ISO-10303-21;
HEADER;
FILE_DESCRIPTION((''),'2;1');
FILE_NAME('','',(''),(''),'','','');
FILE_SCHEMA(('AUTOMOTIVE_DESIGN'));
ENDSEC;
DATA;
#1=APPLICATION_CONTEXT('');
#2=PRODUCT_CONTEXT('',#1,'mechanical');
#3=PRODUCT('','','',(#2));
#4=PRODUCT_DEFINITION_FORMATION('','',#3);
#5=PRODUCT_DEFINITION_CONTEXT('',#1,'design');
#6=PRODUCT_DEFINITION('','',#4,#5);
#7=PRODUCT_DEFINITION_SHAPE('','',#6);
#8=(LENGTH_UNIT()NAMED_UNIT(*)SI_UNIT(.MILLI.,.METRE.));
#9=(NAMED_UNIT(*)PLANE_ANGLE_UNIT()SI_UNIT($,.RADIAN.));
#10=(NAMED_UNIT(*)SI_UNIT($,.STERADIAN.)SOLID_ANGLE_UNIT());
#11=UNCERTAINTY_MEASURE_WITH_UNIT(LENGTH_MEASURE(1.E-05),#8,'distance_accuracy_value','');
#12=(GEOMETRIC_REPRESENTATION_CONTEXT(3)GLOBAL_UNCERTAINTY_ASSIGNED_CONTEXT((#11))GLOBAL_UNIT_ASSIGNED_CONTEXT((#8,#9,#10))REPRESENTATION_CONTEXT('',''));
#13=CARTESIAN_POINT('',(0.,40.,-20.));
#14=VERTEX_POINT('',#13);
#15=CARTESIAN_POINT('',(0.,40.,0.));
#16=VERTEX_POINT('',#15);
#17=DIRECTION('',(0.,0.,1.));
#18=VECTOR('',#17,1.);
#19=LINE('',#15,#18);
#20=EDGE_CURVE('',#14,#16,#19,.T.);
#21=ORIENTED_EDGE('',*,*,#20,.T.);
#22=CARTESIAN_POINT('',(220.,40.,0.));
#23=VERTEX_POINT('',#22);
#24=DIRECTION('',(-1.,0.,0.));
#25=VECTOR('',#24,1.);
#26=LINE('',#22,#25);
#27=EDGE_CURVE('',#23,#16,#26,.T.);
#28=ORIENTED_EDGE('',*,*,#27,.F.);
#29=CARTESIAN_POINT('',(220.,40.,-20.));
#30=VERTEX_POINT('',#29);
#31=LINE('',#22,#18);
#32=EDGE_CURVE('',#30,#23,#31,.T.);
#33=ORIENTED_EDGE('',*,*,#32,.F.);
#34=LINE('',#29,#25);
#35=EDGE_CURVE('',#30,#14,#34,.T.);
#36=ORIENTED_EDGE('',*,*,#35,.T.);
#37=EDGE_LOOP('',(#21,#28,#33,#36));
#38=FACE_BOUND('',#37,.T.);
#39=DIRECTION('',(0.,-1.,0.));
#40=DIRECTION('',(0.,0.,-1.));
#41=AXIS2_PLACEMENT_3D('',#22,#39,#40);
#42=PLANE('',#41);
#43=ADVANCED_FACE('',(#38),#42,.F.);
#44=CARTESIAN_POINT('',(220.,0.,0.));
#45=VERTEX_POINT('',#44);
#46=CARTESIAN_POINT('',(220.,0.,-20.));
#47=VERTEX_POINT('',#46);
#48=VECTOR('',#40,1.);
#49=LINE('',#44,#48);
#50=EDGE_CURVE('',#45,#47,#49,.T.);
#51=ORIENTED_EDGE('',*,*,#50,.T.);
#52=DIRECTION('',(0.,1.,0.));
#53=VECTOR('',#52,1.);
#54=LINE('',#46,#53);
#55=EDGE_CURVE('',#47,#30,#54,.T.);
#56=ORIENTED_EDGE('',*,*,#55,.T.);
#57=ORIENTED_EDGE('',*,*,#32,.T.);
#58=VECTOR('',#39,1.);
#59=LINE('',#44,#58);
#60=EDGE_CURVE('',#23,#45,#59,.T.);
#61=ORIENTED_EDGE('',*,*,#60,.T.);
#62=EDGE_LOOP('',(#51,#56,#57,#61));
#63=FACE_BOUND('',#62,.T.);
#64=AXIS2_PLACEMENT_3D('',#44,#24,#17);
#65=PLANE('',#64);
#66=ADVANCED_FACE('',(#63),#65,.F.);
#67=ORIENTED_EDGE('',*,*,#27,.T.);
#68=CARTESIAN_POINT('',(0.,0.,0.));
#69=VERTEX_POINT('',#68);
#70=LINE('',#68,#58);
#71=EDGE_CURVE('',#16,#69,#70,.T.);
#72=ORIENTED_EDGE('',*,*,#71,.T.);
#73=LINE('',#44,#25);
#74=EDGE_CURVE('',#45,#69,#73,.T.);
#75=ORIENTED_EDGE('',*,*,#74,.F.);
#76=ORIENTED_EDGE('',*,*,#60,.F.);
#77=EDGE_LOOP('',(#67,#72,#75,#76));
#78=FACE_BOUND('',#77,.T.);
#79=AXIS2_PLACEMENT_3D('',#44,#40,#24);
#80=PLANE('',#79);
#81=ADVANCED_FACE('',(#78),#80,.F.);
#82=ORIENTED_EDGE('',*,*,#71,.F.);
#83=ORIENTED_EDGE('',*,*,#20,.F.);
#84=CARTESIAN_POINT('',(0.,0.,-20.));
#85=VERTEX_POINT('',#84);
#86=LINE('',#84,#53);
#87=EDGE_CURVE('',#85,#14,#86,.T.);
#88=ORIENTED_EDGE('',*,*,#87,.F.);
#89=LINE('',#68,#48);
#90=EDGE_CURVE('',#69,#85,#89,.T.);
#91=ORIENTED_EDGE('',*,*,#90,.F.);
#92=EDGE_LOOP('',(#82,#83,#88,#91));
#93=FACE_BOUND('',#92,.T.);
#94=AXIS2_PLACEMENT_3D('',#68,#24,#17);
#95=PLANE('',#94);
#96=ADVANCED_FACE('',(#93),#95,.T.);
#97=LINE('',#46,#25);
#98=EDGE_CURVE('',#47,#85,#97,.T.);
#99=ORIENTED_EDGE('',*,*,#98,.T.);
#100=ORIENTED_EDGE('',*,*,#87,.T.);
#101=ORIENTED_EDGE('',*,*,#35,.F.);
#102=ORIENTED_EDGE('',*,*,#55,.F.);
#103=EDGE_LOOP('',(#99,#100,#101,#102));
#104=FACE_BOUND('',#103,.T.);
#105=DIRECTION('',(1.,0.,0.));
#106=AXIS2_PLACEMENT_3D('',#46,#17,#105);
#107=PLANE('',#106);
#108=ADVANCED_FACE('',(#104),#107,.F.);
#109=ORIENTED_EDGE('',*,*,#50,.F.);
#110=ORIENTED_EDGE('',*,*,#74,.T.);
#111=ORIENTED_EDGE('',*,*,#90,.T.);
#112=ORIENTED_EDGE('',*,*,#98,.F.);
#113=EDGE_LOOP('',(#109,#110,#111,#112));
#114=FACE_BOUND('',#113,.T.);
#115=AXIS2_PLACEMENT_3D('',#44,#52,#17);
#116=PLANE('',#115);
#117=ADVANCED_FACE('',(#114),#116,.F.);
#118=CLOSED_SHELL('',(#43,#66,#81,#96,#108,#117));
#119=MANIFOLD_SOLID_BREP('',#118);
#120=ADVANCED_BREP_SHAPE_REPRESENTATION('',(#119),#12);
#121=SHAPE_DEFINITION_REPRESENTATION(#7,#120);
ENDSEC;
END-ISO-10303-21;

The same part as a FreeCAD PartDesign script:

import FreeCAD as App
import Part
import Sketcher
from FreeCAD import Vector
Q = App.Units.Quantity


def add_polygon(sketch, points):
    """Adds a closed chain of lines whose ends are joined by coincident constraints."""
    first, n = sketch.GeometryCount, len(points)
    for a, b in zip(points, points[1:] + points[:1]):
        sketch.addGeometry(Part.LineSegment(App.Vector(*a, 0), App.Vector(*b, 0)), False)
    for i in range(n):
        sketch.addConstraint(Sketcher.Constraint("Coincident", first + i, 2, first + (i + 1) % n, 1))

doc = App.newDocument("Part")
body = doc.addObject("PartDesign::Body", "Body")

sketch1 = doc.addObject("Sketcher::SketchObject", "Sketch")
body.addObject(sketch1)
sketch1.AttachmentSupport = (doc.YZ_Plane, [""])
sketch1.MapMode = "FlatFace"
add_polygon(sketch1, [(40, 0), (0, 0), (0, -20), (40, -20)])
sketch1.addConstraint([
    Sketcher.Constraint("Horizontal", 0),
    Sketcher.Constraint("Vertical", 1),
    Sketcher.Constraint("Horizontal", 2),
    Sketcher.Constraint("Vertical", 3),
    Sketcher.Constraint("Coincident", 0, 2, -1, 1),
    Sketcher.Constraint("DistanceX", 0, 2, 0, 1, Q("40 mm")),
    Sketcher.Constraint("DistanceY", 1, 2, 1, 1, Q("20 mm")),
])
pad1 = doc.addObject("PartDesign::Pad", "Pad")
body.addObject(pad1)
pad1.Profile = sketch1
pad1.Length = 220

doc.recompute()
